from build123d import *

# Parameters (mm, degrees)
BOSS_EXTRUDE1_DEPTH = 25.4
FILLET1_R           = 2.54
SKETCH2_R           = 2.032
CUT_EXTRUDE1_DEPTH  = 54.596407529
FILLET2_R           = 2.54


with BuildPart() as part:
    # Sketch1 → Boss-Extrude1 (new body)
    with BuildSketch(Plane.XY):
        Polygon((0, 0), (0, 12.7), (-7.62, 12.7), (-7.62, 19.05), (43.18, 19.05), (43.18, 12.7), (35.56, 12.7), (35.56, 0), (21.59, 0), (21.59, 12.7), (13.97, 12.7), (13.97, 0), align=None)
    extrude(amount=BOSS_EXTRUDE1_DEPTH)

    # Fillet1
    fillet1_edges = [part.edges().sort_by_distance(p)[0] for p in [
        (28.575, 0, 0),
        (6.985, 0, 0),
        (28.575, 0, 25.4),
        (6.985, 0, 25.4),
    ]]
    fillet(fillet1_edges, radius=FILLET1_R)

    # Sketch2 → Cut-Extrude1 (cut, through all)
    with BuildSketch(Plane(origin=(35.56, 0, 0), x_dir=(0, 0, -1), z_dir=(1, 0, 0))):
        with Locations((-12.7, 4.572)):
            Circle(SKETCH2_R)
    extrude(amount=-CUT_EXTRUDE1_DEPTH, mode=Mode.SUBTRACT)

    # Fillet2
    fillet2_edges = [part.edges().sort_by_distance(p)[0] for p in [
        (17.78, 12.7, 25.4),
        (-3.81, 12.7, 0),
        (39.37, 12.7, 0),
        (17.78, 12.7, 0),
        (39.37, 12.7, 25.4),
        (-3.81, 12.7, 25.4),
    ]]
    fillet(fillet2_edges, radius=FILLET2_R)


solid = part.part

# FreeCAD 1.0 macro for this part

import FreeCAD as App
import Part
import Sketcher
Q = App.Units.Quantity


def edges_at(feature, points):
    """Names of the edges that pass closest to the given points."""
    edges = feature.Shape.Edges
    near = lambda p: min(range(len(edges)), key=lambda i: edges[i].distToShape(Part.Vertex(*p))[0])
    return sorted({f"Edge{near(p) + 1}" for p in points})

doc = App.newDocument("Part")
body = doc.addObject("PartDesign::Body", "Body")

# Sketch on XY plane
sketch1 = doc.addObject("Sketcher::SketchObject", "Sketch")
body.addObject(sketch1)
sketch1.AttachmentSupport = (doc.XY_Plane, [""])
sketch1.MapMode = "FlatFace"
sketch1.addGeometry(Part.LineSegment(App.Vector(0, 13, 0), App.Vector(0, 0, 0)), False)
sketch1.addGeometry(Part.LineSegment(App.Vector(0, 0, 0), App.Vector(14, 0, 0)), False)
sketch1.addGeometry(Part.LineSegment(App.Vector(14, 0, 0), App.Vector(14, 13, 0)), False)
sketch1.addGeometry(Part.LineSegment(App.Vector(14, 13, 0), App.Vector(22, 13, 0)), False)
sketch1.addGeometry(Part.LineSegment(App.Vector(22, 13, 0), App.Vector(22, 0, 0)), False)
sketch1.addGeometry(Part.LineSegment(App.Vector(22, 0, 0), App.Vector(36, 0, 0)), False)
sketch1.addGeometry(Part.LineSegment(App.Vector(36, 0, 0), App.Vector(36, 13, 0)), False)
sketch1.addGeometry(Part.LineSegment(App.Vector(36, 13, 0), App.Vector(43, 13, 0)), False)
sketch1.addGeometry(Part.LineSegment(App.Vector(43, 13, 0), App.Vector(43, 19, 0)), False)
sketch1.addGeometry(Part.LineSegment(App.Vector(43, 19, 0), App.Vector(-8, 19, 0)), False)
sketch1.addGeometry(Part.LineSegment(App.Vector(-8, 19, 0), App.Vector(-8, 13, 0)), False)
sketch1.addGeometry(Part.LineSegment(App.Vector(-8, 13, 0), App.Vector(0, 13, 0)), False)
sketch1.addConstraint(Sketcher.Constraint("Coincident", 0, 2, 1, 1))
sketch1.addConstraint(Sketcher.Constraint("Coincident", 1, 2, 2, 1))
sketch1.addConstraint(Sketcher.Constraint("Coincident", 2, 2, 3, 1))
sketch1.addConstraint(Sketcher.Constraint("Coincident", 3, 2, 4, 1))
sketch1.addConstraint(Sketcher.Constraint("Coincident", 4, 2, 5, 1))
sketch1.addConstraint(Sketcher.Constraint("Coincident", 5, 2, 6, 1))
sketch1.addConstraint(Sketcher.Constraint("Coincident", 6, 2, 7, 1))
sketch1.addConstraint(Sketcher.Constraint("Coincident", 7, 2, 8, 1))
sketch1.addConstraint(Sketcher.Constraint("Coincident", 8, 2, 9, 1))
sketch1.addConstraint(Sketcher.Constraint("Coincident", 9, 2, 10, 1))
sketch1.addConstraint(Sketcher.Constraint("Coincident", 10, 2, 11, 1))
sketch1.addConstraint(Sketcher.Constraint("Coincident", 11, 2, 0, 1))
sketch1.addConstraint(Sketcher.Constraint("Vertical", 0))
sketch1.addConstraint(Sketcher.Constraint("Horizontal", 1))
sketch1.addConstraint(Sketcher.Constraint("Vertical", 2))
sketch1.addConstraint(Sketcher.Constraint("Horizontal", 3))
sketch1.addConstraint(Sketcher.Constraint("Vertical", 4))
sketch1.addConstraint(Sketcher.Constraint("Horizontal", 5))
sketch1.addConstraint(Sketcher.Constraint("Vertical", 6))
sketch1.addConstraint(Sketcher.Constraint("Horizontal", 7))
sketch1.addConstraint(Sketcher.Constraint("Vertical", 8))
sketch1.addConstraint(Sketcher.Constraint("Horizontal", 9))
sketch1.addConstraint(Sketcher.Constraint("Vertical", 10))
sketch1.addConstraint(Sketcher.Constraint("Horizontal", 11))
sketch1.addConstraint(Sketcher.Constraint("Coincident", 0, 2, -1, 1))
sketch1.addConstraint(Sketcher.Constraint("PointOnObject", 4, 2, -1))
sketch1.addConstraint(Sketcher.Constraint("Horizontal", 3, 2, 6, 2))
sketch1.addConstraint(Sketcher.Constraint("Horizontal", 7, 2, 10, 2))
sketch1.addConstraint(Sketcher.Constraint("Equal", 1, 5))
sketch1.addConstraint(Sketcher.Constraint("Equal", 3, 7))
sketch1.addConstraint(Sketcher.Constraint("Equal", 7, 11))
sketch1.addConstraint(Sketcher.Constraint("DistanceX", 9, 2, 9, 1, Q("2 in")))
sketch1.addConstraint(Sketcher.Constraint("DistanceX", 3, 1, 3, 2, Q("0.3 in")))
sketch1.addConstraint(Sketcher.Constraint("DistanceY", 0, 2, 0, 1, Q("0.5 in")))
sketch1.addConstraint(Sketcher.Constraint("DistanceY", 8, 1, 8, 2, Q("0.25 in")))
pad1 = doc.addObject("PartDesign::Pad", "Pad")
body.addObject(pad1)
pad1.Profile = sketch1
pad1.Length = Q("1 in")
doc.recompute()

fillet = doc.addObject("PartDesign::Fillet", "Fillet")
body.addObject(fillet)
fillet.Base = (pad1, edges_at(pad1, [
    (28.575, 0, 0),
    (6.985, 0, 0),
    (28.575, 0, 25.4),
    (6.985, 0, 25.4),
]))
fillet.Radius = Q("0.1 in")

# Sketch on YZ plane
sketch2 = doc.addObject("Sketcher::SketchObject", "Sketch001")
body.addObject(sketch2)
sketch2.AttachmentSupport = (doc.YZ_Plane, [""])
sketch2.MapMode = "FlatFace"
sketch2.AttachmentOffset = App.Placement(App.Vector(0, 0, 1.4 * 25.4), App.Rotation())
sketch2.addGeometry(Part.Circle(App.Vector(4.6, 12.7, 0), App.Vector(0, 0, 1), 2), False)
sketch2.addConstraint(Sketcher.Constraint("Diameter", 0, Q("0.16 in")))
sketch2.addConstraint(Sketcher.Constraint("DistanceY", -1, 1, 0, 3, Q("0.5 in")))
sketch2.addConstraint(Sketcher.Constraint("DistanceX", -1, 1, 0, 3, Q("0.18 in")))
pocket1 = doc.addObject("PartDesign::Pocket", "Pocket")
body.addObject(pocket1)
pocket1.Profile = sketch2
pocket1.Type = "ThroughAll"
doc.recompute()

fillet2 = doc.addObject("PartDesign::Fillet", "Fillet001")
body.addObject(fillet2)
fillet2.Base = (pocket1, edges_at(pocket1, [
    (17.78, 12.7, 25.4),
    (-3.81, 12.7, 0),
    (39.37, 12.7, 0),
    (17.78, 12.7, 0),
    (39.37, 12.7, 25.4),
    (-3.81, 12.7, 25.4),
]))
fillet2.Radius = Q("0.1 in")

doc.recompute()
